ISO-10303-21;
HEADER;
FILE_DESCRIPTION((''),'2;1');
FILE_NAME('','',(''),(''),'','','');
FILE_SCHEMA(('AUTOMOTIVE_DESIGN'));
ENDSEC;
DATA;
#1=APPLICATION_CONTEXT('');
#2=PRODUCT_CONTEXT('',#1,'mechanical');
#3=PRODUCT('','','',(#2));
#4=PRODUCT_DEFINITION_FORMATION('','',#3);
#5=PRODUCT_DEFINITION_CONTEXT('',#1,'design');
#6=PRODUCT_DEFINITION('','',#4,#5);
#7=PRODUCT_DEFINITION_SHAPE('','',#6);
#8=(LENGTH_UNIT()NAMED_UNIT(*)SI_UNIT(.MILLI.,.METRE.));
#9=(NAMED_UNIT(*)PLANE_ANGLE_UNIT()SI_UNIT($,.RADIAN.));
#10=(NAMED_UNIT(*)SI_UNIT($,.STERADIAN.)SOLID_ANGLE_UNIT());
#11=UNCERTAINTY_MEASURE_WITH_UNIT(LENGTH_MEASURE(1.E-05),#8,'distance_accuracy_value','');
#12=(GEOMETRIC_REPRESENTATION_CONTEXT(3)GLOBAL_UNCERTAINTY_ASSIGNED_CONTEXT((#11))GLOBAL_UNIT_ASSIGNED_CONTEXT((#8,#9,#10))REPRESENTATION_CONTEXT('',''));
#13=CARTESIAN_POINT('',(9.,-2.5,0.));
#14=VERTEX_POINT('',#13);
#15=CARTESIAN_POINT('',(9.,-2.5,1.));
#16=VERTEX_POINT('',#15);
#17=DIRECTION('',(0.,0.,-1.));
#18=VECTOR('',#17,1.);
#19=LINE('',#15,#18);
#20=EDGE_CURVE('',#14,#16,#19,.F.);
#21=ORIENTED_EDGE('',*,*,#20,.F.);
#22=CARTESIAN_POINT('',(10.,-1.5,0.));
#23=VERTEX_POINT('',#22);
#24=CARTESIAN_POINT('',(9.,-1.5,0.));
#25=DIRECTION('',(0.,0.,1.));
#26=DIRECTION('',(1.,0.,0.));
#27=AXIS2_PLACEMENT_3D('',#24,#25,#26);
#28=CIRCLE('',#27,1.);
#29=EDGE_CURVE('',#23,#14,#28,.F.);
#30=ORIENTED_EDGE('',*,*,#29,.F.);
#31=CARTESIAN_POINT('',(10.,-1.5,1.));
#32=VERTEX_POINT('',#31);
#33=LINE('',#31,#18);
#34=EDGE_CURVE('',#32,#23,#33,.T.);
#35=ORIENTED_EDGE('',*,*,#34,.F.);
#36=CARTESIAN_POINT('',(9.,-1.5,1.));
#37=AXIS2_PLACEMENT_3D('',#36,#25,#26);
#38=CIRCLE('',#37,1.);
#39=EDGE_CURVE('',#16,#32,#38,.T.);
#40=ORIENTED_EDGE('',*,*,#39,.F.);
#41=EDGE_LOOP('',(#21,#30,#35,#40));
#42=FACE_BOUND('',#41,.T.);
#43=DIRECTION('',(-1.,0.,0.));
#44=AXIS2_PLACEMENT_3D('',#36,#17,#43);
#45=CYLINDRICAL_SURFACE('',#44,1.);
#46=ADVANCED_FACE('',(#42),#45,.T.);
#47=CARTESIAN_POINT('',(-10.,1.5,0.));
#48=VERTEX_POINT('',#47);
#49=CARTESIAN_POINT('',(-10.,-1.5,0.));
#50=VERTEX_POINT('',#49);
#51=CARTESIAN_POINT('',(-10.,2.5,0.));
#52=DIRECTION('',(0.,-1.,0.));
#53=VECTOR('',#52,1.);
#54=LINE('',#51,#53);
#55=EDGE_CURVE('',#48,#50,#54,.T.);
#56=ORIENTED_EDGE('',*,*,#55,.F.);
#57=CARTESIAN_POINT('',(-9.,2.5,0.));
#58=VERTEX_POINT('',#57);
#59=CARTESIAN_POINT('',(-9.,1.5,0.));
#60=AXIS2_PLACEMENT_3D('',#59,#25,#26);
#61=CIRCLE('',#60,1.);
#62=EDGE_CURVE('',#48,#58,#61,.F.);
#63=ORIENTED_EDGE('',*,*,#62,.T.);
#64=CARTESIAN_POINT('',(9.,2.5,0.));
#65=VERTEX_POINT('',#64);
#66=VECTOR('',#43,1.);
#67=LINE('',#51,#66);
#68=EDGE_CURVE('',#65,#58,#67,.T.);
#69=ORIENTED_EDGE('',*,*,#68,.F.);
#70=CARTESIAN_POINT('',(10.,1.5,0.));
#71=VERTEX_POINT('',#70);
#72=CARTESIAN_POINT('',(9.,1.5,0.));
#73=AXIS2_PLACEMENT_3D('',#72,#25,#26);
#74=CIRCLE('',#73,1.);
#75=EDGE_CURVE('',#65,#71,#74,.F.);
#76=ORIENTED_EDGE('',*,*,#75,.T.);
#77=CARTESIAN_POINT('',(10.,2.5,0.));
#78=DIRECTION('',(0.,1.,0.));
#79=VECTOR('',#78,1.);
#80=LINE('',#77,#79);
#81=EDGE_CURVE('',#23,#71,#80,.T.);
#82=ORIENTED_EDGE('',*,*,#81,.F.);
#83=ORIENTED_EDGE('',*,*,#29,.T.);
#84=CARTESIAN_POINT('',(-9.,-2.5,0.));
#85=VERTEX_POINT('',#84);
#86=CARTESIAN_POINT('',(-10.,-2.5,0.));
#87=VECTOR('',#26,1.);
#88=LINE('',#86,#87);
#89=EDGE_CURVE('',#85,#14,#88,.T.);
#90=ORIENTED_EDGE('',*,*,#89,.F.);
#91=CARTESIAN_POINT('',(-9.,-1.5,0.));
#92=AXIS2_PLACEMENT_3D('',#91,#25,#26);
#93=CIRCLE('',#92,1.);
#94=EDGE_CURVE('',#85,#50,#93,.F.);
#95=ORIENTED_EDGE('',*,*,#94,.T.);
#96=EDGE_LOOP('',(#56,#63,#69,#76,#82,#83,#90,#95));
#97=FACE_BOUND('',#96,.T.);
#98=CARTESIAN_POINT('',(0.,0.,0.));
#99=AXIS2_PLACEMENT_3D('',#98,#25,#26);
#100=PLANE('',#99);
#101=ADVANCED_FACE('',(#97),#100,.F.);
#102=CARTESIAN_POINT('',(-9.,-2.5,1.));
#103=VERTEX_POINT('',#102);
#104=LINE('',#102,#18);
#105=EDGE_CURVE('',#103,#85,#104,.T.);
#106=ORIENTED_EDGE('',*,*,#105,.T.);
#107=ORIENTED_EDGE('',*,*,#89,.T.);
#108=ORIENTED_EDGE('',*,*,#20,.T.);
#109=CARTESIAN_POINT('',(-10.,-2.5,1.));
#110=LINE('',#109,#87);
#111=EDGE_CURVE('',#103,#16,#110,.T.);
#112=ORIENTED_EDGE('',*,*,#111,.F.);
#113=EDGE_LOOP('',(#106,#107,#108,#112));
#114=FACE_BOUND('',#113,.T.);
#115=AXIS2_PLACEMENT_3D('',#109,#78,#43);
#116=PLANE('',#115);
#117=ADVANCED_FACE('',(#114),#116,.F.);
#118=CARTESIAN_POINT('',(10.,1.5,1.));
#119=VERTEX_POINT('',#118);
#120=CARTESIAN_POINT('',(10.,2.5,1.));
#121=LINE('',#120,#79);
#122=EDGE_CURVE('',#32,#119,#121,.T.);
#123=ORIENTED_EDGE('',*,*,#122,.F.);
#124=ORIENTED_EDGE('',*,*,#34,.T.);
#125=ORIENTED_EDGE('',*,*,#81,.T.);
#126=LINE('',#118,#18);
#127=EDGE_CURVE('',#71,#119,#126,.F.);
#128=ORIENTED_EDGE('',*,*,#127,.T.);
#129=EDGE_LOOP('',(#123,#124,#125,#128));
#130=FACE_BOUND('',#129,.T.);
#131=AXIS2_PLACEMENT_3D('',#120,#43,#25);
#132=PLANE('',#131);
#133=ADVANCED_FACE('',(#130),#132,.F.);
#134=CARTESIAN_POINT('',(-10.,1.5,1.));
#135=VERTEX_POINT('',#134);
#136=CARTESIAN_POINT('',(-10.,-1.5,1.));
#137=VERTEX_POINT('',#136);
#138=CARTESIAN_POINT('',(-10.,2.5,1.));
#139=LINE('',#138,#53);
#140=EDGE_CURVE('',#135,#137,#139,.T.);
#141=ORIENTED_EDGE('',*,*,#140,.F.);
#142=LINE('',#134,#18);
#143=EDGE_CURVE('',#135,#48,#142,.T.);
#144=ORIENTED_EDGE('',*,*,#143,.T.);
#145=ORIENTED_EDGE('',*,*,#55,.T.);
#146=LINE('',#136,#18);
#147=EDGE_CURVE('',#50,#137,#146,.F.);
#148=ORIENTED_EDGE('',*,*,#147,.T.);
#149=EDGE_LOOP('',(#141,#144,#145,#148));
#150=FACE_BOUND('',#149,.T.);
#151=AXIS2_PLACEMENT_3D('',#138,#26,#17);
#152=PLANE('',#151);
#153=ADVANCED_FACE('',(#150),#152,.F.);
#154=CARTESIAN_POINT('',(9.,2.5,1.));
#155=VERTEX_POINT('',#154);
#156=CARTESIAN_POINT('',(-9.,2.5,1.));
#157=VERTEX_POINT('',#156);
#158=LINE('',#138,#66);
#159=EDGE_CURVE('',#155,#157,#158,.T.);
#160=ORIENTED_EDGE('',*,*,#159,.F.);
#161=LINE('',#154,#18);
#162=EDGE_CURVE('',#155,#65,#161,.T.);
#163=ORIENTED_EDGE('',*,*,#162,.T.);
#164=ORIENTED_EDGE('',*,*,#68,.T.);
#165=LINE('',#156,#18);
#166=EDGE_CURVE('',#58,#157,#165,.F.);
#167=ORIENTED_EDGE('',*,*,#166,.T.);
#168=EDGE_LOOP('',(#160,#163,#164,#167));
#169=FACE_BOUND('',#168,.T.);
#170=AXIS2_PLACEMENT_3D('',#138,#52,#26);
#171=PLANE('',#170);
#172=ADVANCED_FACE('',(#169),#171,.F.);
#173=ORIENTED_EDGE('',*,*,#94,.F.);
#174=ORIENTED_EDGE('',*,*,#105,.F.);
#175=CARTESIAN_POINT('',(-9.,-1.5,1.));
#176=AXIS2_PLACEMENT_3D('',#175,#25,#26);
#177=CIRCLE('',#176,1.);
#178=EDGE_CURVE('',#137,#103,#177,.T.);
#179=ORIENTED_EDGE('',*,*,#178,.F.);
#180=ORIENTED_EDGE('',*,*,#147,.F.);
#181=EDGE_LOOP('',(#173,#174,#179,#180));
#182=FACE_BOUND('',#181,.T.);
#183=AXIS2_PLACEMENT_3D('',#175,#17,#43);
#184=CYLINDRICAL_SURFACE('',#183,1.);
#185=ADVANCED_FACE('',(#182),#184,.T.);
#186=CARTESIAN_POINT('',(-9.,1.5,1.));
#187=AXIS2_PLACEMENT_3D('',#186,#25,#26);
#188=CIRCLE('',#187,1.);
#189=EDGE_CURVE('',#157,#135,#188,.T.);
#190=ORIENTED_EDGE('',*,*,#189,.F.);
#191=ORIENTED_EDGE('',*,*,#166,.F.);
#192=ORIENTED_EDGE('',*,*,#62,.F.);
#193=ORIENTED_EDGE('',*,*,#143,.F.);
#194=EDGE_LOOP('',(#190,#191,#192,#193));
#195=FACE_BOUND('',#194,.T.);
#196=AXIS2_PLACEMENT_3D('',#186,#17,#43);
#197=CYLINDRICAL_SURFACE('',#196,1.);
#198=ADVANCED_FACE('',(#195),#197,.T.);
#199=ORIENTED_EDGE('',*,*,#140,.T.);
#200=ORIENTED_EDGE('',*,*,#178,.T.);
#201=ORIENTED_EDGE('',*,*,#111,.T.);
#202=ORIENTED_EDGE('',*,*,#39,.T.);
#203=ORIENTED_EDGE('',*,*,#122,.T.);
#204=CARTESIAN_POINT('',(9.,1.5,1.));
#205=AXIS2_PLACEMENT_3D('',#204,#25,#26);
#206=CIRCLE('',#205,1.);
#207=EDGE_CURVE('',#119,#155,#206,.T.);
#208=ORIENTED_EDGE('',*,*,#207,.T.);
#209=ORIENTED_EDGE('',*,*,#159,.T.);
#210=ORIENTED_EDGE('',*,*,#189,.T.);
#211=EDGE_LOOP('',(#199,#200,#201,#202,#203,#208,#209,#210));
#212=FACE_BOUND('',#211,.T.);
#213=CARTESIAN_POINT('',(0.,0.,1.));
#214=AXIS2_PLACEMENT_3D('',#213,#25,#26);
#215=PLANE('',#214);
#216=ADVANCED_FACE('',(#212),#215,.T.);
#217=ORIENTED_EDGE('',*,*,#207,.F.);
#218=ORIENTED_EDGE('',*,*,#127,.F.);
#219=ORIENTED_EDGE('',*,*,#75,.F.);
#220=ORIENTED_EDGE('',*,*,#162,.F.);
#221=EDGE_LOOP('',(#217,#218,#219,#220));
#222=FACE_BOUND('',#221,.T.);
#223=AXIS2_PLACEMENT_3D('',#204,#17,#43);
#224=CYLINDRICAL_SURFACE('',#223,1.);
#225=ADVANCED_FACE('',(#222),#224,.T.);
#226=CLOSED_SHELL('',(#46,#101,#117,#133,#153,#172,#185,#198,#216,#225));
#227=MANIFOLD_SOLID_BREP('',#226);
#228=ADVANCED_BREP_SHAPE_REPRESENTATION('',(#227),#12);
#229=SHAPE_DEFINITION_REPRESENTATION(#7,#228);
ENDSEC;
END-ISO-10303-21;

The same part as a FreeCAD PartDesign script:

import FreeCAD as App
import Part
import Sketcher
from FreeCAD import Vector
Q = App.Units.Quantity


def edges_at(feature, points):
    """Names of the edges that pass closest to the given points."""
    edges = feature.Shape.Edges
    near = lambda p: min(range(len(edges)), key=lambda i: edges[i].distToShape(Part.Vertex(*p))[0])
    return sorted({f"Edge{near(p) + 1}" for p in points})


def add_polygon(sketch, points):
    """Adds a closed chain of lines whose ends are joined by coincident constraints."""
    first, n = sketch.GeometryCount, len(points)
    for a, b in zip(points, points[1:] + points[:1]):
        sketch.addGeometry(Part.LineSegment(App.Vector(*a, 0), App.Vector(*b, 0)), False)
    for i in range(n):
        sketch.addConstraint(Sketcher.Constraint("Coincident", first + i, 2, first + (i + 1) % n, 1))

doc = App.newDocument("Part")
body = doc.addObject("PartDesign::Body", "Body")

# Sketch on XY plane
sketch1 = doc.addObject("Sketcher::SketchObject", "Sketch")
body.addObject(sketch1)
sketch1.AttachmentSupport = (doc.XY_Plane, [""])
sketch1.MapMode = "FlatFace"
add_polygon(sketch1, [(-10, 2), (-10, -2), (10, -2), (10, 2)])  # lines 0-3
sketch1.addConstraint([
    Sketcher.Constraint("Vertical", 0),
    Sketcher.Constraint("Horizontal", 1),
    Sketcher.Constraint("Vertical", 2),
    Sketcher.Constraint("Horizontal", 3),
    Sketcher.Constraint("Symmetric", 0, 2, 2, 2, -1, 1),
    Sketcher.Constraint("DistanceX", 1, 1, 1, 2, Q("20 mm")),
    Sketcher.Constraint("DistanceY", 0, 2, 0, 1, Q("5 mm")),
])
pad1 = doc.addObject("PartDesign::Pad", "Pad")
body.addObject(pad1)
pad1.Profile = sketch1
pad1.Length = 1
doc.recompute()

fillet = doc.addObject("PartDesign::Fillet", "Fillet")
body.addObject(fillet)
fillet.Base = (pad1, edges_at(pad1, [
    (-10, 2.5, 0.5),
    (10, 2.5, 0.5),
    (10, -2.5, 0.5),
    (-10, -2.5, 0.5),
]))
fillet.Radius = 1

doc.recompute()
